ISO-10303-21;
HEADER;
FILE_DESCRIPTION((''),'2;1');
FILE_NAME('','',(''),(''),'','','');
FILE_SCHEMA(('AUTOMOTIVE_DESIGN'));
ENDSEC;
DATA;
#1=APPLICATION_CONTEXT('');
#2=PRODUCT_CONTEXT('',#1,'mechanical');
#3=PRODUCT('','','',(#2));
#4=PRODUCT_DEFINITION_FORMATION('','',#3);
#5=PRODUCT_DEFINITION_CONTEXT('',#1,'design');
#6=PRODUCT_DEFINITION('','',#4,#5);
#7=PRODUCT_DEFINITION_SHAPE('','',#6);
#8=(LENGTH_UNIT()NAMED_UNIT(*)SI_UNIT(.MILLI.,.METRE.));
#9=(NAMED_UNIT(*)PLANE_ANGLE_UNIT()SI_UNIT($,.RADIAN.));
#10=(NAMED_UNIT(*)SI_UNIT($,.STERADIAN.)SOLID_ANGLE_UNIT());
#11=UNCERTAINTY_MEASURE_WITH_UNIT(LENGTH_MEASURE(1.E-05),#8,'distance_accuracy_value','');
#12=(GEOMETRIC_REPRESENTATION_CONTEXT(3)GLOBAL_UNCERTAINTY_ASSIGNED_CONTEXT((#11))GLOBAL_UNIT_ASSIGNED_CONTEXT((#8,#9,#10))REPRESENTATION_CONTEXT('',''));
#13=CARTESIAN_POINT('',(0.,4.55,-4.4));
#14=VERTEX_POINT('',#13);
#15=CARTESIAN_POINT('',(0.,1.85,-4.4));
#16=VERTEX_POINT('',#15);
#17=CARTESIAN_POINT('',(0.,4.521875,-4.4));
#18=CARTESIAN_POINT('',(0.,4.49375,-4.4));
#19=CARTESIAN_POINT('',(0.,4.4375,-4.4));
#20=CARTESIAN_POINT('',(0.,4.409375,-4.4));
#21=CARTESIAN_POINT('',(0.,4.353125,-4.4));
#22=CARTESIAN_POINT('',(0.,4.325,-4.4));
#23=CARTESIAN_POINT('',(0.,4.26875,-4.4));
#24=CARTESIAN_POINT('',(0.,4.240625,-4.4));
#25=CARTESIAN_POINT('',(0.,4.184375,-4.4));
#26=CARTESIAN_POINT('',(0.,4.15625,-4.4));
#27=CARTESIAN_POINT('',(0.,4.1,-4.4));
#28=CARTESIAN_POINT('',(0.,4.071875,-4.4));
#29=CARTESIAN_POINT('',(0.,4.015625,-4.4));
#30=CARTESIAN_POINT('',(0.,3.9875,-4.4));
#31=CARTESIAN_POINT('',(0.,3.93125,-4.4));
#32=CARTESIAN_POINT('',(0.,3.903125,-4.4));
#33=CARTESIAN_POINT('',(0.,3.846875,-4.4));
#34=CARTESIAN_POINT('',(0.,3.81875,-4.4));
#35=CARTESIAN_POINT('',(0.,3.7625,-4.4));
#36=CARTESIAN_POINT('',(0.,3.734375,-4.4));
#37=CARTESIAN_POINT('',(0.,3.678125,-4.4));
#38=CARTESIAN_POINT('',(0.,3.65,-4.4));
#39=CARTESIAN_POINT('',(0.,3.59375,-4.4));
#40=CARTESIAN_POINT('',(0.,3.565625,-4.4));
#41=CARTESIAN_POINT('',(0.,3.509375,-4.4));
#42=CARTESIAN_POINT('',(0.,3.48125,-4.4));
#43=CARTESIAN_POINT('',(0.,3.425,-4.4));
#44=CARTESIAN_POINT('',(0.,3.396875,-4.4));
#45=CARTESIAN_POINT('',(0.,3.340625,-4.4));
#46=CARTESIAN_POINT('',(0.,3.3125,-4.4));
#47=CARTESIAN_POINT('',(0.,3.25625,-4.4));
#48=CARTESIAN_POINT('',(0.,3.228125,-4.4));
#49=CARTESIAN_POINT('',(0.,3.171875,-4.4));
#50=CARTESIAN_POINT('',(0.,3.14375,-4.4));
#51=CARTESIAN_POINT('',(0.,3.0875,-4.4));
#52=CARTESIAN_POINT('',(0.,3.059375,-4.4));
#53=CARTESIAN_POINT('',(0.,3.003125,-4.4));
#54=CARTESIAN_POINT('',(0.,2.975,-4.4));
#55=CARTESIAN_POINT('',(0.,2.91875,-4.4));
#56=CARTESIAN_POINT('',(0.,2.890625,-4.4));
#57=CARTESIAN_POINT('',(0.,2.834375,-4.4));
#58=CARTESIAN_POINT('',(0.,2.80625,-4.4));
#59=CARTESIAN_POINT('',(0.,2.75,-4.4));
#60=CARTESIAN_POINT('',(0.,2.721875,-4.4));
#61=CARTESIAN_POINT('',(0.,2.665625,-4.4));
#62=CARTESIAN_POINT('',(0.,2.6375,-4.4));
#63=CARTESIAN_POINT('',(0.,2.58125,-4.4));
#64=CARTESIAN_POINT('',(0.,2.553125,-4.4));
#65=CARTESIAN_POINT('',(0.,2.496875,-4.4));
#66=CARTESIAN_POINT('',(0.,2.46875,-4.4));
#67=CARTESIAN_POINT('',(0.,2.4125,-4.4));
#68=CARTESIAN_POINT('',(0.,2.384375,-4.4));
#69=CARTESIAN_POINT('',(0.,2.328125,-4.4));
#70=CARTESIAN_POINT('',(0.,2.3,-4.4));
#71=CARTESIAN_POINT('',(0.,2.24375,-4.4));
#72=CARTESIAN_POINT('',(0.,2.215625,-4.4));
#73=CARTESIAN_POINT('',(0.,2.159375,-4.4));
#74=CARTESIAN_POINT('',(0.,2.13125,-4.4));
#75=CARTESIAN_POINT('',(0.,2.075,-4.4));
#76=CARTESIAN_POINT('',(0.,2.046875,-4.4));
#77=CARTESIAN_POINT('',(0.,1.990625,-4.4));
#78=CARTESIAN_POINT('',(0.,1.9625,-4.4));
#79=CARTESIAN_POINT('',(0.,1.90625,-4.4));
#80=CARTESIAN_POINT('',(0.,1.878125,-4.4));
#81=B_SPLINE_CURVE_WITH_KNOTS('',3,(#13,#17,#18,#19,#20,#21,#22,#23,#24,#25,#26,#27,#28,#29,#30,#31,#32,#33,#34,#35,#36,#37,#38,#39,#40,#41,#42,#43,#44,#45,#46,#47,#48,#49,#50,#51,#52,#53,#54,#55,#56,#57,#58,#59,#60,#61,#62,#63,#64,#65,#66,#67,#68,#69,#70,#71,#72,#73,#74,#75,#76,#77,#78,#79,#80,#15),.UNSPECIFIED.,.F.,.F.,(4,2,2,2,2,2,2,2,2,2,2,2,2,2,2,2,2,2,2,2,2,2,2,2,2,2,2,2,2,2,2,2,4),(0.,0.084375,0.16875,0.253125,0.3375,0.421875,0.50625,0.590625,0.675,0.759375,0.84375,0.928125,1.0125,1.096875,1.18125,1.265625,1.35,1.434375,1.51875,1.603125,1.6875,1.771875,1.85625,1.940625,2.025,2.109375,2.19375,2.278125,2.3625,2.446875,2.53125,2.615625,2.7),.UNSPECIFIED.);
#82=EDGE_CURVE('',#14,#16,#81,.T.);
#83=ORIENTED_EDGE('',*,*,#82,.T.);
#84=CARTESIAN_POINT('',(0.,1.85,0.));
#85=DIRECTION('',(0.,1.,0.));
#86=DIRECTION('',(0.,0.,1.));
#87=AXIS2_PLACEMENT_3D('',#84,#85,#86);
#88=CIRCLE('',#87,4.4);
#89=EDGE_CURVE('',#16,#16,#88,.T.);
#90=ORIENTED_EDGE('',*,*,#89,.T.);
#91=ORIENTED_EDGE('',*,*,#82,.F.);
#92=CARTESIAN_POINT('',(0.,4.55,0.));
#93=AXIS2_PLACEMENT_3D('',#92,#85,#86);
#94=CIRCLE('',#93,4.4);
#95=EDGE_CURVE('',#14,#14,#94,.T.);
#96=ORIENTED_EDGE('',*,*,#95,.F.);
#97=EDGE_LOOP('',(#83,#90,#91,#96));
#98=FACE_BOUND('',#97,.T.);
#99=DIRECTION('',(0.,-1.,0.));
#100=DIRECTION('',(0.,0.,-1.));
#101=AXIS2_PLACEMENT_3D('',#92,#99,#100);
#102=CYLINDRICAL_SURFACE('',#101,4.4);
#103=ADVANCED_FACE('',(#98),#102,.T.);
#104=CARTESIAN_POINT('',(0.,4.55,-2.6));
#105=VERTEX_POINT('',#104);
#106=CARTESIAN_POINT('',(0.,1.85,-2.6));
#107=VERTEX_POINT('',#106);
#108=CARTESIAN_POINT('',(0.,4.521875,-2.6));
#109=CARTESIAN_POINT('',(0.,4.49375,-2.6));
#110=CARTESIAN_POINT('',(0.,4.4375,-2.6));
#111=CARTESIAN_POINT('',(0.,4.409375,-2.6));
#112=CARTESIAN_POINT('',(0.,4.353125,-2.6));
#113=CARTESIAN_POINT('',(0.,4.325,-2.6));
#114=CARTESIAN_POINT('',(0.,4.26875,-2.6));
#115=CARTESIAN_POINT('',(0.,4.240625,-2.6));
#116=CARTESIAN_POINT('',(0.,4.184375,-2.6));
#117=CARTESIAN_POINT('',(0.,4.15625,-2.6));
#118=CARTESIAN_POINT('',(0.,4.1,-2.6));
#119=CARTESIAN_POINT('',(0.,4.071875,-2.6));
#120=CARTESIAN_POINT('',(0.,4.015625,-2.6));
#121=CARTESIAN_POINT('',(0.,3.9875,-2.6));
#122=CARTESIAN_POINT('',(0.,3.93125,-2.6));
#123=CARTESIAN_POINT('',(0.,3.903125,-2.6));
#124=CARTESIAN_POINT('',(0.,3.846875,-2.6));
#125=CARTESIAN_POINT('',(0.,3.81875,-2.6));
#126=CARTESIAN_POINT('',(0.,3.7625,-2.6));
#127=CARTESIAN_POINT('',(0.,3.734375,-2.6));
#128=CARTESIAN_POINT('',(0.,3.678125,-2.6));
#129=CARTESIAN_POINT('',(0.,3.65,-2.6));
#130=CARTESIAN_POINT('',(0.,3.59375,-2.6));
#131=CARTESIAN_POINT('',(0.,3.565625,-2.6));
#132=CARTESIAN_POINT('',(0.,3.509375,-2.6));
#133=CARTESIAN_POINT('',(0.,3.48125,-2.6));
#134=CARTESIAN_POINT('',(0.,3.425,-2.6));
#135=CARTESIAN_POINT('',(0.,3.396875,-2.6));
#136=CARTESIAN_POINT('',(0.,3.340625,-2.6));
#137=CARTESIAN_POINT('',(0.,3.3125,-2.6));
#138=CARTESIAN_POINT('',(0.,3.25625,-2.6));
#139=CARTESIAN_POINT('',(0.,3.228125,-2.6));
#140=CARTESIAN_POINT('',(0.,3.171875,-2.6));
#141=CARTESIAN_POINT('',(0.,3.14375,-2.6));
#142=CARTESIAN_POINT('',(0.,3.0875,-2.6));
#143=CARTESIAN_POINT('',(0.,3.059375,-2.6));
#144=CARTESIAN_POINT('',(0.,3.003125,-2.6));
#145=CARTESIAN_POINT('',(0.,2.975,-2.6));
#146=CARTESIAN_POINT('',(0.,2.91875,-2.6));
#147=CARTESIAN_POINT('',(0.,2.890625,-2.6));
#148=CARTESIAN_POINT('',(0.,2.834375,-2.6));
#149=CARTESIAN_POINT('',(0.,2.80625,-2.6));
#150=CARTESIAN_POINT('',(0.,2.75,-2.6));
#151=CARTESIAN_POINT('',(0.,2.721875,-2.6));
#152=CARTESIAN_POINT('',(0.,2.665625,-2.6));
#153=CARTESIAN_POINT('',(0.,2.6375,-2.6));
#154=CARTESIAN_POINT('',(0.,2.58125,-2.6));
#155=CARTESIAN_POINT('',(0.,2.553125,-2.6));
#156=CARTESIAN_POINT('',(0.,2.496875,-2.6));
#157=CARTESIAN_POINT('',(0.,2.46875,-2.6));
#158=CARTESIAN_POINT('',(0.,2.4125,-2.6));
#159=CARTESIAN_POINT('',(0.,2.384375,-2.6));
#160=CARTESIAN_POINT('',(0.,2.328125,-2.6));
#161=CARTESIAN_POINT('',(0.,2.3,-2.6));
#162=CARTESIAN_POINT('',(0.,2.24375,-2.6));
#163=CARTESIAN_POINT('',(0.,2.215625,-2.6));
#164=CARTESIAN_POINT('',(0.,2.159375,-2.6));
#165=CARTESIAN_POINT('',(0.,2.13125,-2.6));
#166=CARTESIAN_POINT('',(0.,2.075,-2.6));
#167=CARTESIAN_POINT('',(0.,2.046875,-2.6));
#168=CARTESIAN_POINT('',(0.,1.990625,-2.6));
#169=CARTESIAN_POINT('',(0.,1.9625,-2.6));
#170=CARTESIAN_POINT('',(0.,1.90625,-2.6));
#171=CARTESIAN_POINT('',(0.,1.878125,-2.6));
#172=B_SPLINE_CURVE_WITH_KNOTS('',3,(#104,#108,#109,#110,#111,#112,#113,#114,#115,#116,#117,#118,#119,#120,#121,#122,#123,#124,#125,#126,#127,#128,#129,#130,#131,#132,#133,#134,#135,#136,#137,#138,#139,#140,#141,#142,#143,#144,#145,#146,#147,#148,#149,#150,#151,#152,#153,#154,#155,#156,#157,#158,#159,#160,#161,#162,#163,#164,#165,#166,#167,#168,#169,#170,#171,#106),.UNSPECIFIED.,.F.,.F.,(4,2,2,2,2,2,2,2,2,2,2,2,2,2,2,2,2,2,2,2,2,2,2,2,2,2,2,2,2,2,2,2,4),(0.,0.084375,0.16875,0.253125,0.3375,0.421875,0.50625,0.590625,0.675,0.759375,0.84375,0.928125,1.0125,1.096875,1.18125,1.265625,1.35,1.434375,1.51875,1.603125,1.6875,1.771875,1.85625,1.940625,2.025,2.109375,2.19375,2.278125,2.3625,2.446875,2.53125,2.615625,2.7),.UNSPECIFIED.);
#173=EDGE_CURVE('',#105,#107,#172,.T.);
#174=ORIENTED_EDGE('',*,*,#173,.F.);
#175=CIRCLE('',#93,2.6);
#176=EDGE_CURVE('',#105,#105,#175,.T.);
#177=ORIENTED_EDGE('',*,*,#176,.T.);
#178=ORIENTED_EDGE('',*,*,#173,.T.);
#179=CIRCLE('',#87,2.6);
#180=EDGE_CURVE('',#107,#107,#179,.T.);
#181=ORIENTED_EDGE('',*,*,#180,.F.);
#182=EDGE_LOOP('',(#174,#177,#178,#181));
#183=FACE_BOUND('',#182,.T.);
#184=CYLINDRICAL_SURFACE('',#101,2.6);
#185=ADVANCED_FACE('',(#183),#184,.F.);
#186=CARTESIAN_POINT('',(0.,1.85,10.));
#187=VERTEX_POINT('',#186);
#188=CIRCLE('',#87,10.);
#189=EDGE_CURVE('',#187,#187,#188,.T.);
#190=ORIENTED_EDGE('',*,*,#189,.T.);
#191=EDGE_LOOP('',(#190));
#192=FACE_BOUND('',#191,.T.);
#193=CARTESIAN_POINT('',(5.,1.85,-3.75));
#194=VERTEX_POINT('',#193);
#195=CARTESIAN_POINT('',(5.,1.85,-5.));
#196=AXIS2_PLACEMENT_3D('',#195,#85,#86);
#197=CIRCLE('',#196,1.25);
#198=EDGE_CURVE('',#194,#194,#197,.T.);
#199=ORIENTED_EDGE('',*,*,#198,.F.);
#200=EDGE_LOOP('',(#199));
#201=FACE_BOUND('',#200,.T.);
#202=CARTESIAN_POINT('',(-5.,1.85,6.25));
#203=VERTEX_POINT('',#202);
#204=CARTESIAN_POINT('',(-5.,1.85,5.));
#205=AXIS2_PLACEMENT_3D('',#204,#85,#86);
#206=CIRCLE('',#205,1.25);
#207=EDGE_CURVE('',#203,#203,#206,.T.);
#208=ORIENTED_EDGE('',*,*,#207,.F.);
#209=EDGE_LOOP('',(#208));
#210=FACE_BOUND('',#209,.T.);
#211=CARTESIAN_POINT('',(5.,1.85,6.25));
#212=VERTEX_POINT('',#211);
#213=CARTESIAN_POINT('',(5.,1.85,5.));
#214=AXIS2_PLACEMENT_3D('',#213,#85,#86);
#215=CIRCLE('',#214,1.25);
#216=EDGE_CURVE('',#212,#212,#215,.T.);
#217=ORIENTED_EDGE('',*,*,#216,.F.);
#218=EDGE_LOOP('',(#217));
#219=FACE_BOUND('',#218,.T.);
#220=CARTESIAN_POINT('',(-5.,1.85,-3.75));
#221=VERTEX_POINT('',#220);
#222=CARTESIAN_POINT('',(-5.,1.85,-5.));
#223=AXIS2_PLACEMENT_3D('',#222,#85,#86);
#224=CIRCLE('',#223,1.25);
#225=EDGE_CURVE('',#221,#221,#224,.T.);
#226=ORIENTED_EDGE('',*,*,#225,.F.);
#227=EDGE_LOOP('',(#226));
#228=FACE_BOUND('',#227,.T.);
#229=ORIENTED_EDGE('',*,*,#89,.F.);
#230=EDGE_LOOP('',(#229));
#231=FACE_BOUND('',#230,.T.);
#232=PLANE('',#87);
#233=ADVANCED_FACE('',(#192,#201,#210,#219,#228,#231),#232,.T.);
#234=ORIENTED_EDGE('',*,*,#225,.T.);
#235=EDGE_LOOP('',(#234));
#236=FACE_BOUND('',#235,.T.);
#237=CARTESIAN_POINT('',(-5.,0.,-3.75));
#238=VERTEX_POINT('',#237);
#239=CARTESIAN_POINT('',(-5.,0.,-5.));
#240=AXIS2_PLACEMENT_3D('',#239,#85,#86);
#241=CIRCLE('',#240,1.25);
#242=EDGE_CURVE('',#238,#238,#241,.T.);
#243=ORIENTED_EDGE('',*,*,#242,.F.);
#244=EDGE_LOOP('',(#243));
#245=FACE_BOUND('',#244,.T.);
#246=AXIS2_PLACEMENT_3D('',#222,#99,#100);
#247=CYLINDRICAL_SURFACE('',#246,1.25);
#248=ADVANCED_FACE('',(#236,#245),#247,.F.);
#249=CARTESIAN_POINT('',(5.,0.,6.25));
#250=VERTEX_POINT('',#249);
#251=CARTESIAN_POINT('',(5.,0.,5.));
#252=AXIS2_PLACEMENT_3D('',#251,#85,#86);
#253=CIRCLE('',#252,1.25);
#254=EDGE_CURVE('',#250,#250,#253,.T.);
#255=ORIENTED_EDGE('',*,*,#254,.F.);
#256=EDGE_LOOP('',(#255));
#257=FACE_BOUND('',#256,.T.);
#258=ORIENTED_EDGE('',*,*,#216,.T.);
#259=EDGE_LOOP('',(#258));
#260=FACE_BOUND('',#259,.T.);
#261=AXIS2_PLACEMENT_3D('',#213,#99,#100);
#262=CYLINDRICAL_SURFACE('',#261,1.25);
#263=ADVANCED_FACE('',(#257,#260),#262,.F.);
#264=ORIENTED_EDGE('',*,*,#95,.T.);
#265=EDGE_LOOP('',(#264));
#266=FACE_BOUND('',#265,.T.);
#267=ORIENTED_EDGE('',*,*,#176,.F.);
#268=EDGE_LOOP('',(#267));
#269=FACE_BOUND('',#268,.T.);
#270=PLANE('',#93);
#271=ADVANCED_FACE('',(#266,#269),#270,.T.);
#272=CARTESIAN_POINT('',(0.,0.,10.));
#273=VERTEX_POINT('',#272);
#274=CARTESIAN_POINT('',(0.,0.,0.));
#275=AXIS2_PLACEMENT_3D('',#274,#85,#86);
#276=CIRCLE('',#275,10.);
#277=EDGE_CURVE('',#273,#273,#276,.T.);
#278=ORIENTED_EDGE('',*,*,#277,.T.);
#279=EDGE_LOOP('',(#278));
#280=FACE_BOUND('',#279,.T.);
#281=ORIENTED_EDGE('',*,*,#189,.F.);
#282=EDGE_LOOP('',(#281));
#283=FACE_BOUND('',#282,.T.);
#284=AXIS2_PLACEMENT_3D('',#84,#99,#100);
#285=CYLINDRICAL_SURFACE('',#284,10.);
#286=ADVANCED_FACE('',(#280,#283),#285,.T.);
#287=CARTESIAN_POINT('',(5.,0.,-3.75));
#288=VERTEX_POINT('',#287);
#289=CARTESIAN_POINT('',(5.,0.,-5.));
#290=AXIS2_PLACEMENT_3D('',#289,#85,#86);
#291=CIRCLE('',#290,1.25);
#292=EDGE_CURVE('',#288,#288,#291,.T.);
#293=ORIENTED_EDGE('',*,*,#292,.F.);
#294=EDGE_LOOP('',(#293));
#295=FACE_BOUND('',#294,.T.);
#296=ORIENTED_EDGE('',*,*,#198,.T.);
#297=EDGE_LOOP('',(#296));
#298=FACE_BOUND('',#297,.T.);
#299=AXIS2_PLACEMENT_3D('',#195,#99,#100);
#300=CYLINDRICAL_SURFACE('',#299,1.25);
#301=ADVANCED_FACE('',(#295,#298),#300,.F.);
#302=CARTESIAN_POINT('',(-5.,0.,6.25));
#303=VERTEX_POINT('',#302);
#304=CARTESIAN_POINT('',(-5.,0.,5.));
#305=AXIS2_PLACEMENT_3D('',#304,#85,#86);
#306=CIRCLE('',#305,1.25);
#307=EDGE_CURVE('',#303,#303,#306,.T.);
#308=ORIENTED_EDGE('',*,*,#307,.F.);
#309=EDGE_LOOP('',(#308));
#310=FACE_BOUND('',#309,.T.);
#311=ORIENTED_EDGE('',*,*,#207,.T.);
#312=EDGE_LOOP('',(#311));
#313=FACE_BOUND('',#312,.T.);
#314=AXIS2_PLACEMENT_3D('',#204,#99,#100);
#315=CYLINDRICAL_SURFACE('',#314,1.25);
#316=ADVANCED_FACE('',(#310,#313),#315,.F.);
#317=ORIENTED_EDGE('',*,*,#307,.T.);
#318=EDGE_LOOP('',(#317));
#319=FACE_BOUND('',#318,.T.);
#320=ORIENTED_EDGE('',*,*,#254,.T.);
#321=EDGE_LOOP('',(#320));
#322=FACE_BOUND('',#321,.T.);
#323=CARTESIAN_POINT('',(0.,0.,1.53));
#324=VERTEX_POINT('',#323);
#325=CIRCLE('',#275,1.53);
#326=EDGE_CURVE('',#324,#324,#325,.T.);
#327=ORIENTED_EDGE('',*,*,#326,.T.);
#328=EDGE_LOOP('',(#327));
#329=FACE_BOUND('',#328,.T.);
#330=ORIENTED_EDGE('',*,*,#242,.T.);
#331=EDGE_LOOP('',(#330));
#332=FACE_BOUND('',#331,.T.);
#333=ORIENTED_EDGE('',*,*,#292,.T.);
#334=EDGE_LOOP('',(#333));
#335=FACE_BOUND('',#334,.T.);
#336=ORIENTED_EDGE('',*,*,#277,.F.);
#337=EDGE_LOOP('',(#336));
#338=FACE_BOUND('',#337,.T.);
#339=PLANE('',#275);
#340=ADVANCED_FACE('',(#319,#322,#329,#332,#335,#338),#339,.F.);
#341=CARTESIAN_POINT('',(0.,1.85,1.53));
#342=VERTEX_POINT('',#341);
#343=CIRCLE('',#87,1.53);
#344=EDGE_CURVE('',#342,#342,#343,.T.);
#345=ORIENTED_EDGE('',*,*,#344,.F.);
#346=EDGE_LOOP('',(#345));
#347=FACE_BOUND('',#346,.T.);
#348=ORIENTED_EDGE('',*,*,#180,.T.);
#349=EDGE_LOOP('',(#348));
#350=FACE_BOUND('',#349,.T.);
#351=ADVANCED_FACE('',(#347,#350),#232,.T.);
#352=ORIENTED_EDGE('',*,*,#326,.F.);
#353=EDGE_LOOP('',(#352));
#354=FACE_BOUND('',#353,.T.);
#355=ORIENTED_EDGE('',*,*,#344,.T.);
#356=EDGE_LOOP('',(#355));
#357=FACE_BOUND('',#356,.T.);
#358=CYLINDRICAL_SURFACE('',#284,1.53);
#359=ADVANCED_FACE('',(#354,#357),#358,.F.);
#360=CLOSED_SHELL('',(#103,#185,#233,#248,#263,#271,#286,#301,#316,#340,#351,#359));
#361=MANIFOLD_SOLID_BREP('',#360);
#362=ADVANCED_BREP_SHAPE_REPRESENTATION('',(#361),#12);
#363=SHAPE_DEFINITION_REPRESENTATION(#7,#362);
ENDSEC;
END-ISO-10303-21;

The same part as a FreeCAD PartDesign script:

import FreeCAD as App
import Part
import Sketcher
from FreeCAD import Vector

doc = App.newDocument("Part")
body = doc.addObject("PartDesign::Body", "Body")

sketch1 = body.newObject("Sketcher::SketchObject", "Sketch")
sketch1.AttachmentSupport = (doc.getObject("XZ_Plane"), [""])
sketch1.MapMode = "FlatFace"
sketch1.addGeometry([
    Part.Circle(Vector(0, 0, 0), Vector(0, 0, 1), 10),
    Part.Circle(Vector(-5, -5, 0), Vector(0, 0, 1), 1.2),
    Part.Circle(Vector(-5, 5, 0), Vector(0, 0, 1), 1.2),
    Part.Circle(Vector(0, 0, 0), Vector(0, 0, 1), 1.5),
    Part.Circle(Vector(5, -5, 0), Vector(0, 0, 1), 1.2),
    Part.Circle(Vector(5, 5, 0), Vector(0, 0, 1), 1.2),
], False)
sketch1.addConstraint([
    Sketcher.Constraint("Coincident", 0, 3, -1, 1),
    Sketcher.Constraint("Coincident", 3, 3, -1, 1),
    Sketcher.Constraint("Equal", 1, 2),
    Sketcher.Constraint("Equal", 2, 4),
    Sketcher.Constraint("Equal", 4, 5),
    Sketcher.Constraint("Symmetric", 2, 3, 4, 3, -1, 1),
    Sketcher.Constraint("Symmetric", 1, 3, 5, 3, -1, 1),
    Sketcher.Constraint("Symmetric", 1, 3, 4, 3, -2),
    Sketcher.Constraint("Diameter", 0, 20.0),
    Sketcher.Constraint("Diameter", 1, 2.5),
    Sketcher.Constraint("Diameter", 3, 3.06),
    Sketcher.Constraint("DistanceX", 1, 3, -1, 1, 5.0),
    Sketcher.Constraint("DistanceY", 1, 3, -1, 1, 5.0),
])
pad1 = body.newObject("PartDesign::Pad", "Pad")
pad1.Profile = sketch1
pad1.Length = 1.85
pad1.Reversed = True

sketch2 = body.newObject("Sketcher::SketchObject", "Sketch001")
sketch2.AttachmentSupport = (doc.getObject("XZ_Plane"), [""])
sketch2.MapMode = "FlatFace"
sketch2.AttachmentOffset = App.Placement(Vector(0, 0, -1.85), App.Rotation())
sketch2.addGeometry([
    Part.Circle(Vector(0, 0, 0), Vector(0, 0, 1), 4.4),
    Part.Circle(Vector(0, 0, 0), Vector(0, 0, 1), 2.6),
], False)
sketch2.addConstraint([
    Sketcher.Constraint("Coincident", 0, 3, -1, 1),
    Sketcher.Constraint("Coincident", 1, 3, -1, 1),
    Sketcher.Constraint("Diameter", 0, 8.8),
    Sketcher.Constraint("Diameter", 1, 5.2),
])
pad2 = body.newObject("PartDesign::Pad", "Pad001")
pad2.Profile = sketch2
pad2.Length = 2.7
pad2.Reversed = True

doc.recompute()
